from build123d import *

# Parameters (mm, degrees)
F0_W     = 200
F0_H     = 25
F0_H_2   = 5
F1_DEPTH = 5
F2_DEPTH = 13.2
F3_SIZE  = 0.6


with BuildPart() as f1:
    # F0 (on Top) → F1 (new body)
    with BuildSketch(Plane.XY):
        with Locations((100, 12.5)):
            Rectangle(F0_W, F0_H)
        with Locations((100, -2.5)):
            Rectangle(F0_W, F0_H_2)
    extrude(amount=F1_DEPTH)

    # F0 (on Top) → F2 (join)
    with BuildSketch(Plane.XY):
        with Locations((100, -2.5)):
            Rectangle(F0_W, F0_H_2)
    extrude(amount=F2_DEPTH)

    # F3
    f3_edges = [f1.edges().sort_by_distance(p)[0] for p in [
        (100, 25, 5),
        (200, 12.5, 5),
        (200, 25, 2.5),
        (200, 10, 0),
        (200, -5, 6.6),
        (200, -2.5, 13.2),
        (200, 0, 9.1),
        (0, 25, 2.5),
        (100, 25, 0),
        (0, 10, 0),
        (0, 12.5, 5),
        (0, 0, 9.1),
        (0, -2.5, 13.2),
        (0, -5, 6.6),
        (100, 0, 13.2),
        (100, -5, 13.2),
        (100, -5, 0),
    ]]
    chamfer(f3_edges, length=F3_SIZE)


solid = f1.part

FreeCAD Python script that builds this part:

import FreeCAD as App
import Part
import Sketcher


def edges_at(feature, points):
    """Names of the edges that pass closest to the given points."""
    edges = feature.Shape.Edges
    near = lambda p: min(range(len(edges)), key=lambda i: edges[i].distToShape(Part.Vertex(*p))[0])
    return sorted({f"Edge{near(p) + 1}" for p in points})


def add_polygon(sketch, points):
    """Adds a closed chain of lines whose ends are joined by coincident constraints."""
    first, n = sketch.GeometryCount, len(points)
    for a, b in zip(points, points[1:] + points[:1]):
        sketch.addGeometry(Part.LineSegment(App.Vector(*a, 0), App.Vector(*b, 0)), False)
    for i in range(n):
        sketch.addConstraint(Sketcher.Constraint("Coincident", first + i, 2, first + (i + 1) % n, 1))

doc = App.newDocument("Part")
params = doc.addObject("Spreadsheet::Sheet", "Params")
for row, (alias, value) in enumerate([
    ("sketch1_width", "200 mm"),
    ("sketch1_height", "30 mm"),
    ("pad1_length", "5 mm"),
    ("sketch2_width", "200 mm"),
    ("sketch2_height", "5 mm"),
    ("pad2_length", "13.2 mm"),
    ("chamfer_size", "0.6 mm"),
], start=1):
    params.set(f"A{row}", alias)
    params.set(f"B{row}", "=" + value)
    params.setAlias(f"B{row}", alias)

body = doc.addObject("PartDesign::Body", "Body")

# Sketch on XY plane
sketch1 = body.newObject("Sketcher::SketchObject", "Sketch")
sketch1.AttachmentSupport = (doc.getObject("XY_Plane"), [""])
sketch1.MapMode = "FlatFace"
add_polygon(sketch1, [(0, 25), (0, -5), (200, -5), (200, 25)])  # lines 0-3
sketch1.addConstraint([
    Sketcher.Constraint("Vertical", 0),
    Sketcher.Constraint("Horizontal", 1),
    Sketcher.Constraint("Vertical", 2),
    Sketcher.Constraint("Horizontal", 3),
    Sketcher.Constraint("PointOnObject", 0, 2, -2),
    Sketcher.Constraint("DistanceX", 1, 1, 1, 2, 200.0),
    Sketcher.Constraint("DistanceY", 0, 2, 0, 1, 30.0),
    Sketcher.Constraint("DistanceY", 0, 2, -1, 1, 5.0),
])
sketch1.setExpression("Constraints[9]", "Params.sketch1_width")
sketch1.setExpression("Constraints[10]", "Params.sketch1_height")
pad1 = body.newObject("PartDesign::Pad", "Pad")
pad1.Profile = sketch1
pad1.setExpression("Length", "Params.pad1_length")

# Sketch on XY plane
sketch2 = body.newObject("Sketcher::SketchObject", "Sketch001")
sketch2.AttachmentSupport = (doc.getObject("XY_Plane"), [""])
sketch2.MapMode = "FlatFace"
add_polygon(sketch2, [(0, 0), (0, -5), (200, -5), (200, 0)])  # lines 0-3
sketch2.addConstraint([
    Sketcher.Constraint("Vertical", 0),
    Sketcher.Constraint("Horizontal", 1),
    Sketcher.Constraint("Vertical", 2),
    Sketcher.Constraint("Horizontal", 3),
    Sketcher.Constraint("Coincident", 3, 2, -1, 1),
    Sketcher.Constraint("DistanceX", 1, 1, 1, 2, 200.0),
    Sketcher.Constraint("DistanceY", 0, 2, 0, 1, 5.0),
])
sketch2.setExpression("Constraints[9]", "Params.sketch2_width")
sketch2.setExpression("Constraints[10]", "Params.sketch2_height")
pad2 = body.newObject("PartDesign::Pad", "Pad001")
pad2.Profile = sketch2
pad2.setExpression("Length", "Params.pad2_length")
doc.recompute()

chamfer = body.newObject("PartDesign::Chamfer", "Chamfer")
chamfer.Base = (pad2, edges_at(pad2, [
    (100, 25, 5),
    (200, 12.5, 5),
    (200, 25, 2.5),
    (200, 10, 0),
    (200, -5, 6.6),
    (200, -2.5, 13.2),
    (200, 0, 9.1),
    (0, 25, 2.5),
    (100, 25, 0),
    (0, 10, 0),
    (0, 12.5, 5),
    (0, 0, 9.1),
    (0, -2.5, 13.2),
    (0, -5, 6.6),
    (100, 0, 13.2),
    (100, -5, 13.2),
    (100, -5, 0),
]))
chamfer.setExpression("Size", "Params.chamfer_size")

doc.recompute()
